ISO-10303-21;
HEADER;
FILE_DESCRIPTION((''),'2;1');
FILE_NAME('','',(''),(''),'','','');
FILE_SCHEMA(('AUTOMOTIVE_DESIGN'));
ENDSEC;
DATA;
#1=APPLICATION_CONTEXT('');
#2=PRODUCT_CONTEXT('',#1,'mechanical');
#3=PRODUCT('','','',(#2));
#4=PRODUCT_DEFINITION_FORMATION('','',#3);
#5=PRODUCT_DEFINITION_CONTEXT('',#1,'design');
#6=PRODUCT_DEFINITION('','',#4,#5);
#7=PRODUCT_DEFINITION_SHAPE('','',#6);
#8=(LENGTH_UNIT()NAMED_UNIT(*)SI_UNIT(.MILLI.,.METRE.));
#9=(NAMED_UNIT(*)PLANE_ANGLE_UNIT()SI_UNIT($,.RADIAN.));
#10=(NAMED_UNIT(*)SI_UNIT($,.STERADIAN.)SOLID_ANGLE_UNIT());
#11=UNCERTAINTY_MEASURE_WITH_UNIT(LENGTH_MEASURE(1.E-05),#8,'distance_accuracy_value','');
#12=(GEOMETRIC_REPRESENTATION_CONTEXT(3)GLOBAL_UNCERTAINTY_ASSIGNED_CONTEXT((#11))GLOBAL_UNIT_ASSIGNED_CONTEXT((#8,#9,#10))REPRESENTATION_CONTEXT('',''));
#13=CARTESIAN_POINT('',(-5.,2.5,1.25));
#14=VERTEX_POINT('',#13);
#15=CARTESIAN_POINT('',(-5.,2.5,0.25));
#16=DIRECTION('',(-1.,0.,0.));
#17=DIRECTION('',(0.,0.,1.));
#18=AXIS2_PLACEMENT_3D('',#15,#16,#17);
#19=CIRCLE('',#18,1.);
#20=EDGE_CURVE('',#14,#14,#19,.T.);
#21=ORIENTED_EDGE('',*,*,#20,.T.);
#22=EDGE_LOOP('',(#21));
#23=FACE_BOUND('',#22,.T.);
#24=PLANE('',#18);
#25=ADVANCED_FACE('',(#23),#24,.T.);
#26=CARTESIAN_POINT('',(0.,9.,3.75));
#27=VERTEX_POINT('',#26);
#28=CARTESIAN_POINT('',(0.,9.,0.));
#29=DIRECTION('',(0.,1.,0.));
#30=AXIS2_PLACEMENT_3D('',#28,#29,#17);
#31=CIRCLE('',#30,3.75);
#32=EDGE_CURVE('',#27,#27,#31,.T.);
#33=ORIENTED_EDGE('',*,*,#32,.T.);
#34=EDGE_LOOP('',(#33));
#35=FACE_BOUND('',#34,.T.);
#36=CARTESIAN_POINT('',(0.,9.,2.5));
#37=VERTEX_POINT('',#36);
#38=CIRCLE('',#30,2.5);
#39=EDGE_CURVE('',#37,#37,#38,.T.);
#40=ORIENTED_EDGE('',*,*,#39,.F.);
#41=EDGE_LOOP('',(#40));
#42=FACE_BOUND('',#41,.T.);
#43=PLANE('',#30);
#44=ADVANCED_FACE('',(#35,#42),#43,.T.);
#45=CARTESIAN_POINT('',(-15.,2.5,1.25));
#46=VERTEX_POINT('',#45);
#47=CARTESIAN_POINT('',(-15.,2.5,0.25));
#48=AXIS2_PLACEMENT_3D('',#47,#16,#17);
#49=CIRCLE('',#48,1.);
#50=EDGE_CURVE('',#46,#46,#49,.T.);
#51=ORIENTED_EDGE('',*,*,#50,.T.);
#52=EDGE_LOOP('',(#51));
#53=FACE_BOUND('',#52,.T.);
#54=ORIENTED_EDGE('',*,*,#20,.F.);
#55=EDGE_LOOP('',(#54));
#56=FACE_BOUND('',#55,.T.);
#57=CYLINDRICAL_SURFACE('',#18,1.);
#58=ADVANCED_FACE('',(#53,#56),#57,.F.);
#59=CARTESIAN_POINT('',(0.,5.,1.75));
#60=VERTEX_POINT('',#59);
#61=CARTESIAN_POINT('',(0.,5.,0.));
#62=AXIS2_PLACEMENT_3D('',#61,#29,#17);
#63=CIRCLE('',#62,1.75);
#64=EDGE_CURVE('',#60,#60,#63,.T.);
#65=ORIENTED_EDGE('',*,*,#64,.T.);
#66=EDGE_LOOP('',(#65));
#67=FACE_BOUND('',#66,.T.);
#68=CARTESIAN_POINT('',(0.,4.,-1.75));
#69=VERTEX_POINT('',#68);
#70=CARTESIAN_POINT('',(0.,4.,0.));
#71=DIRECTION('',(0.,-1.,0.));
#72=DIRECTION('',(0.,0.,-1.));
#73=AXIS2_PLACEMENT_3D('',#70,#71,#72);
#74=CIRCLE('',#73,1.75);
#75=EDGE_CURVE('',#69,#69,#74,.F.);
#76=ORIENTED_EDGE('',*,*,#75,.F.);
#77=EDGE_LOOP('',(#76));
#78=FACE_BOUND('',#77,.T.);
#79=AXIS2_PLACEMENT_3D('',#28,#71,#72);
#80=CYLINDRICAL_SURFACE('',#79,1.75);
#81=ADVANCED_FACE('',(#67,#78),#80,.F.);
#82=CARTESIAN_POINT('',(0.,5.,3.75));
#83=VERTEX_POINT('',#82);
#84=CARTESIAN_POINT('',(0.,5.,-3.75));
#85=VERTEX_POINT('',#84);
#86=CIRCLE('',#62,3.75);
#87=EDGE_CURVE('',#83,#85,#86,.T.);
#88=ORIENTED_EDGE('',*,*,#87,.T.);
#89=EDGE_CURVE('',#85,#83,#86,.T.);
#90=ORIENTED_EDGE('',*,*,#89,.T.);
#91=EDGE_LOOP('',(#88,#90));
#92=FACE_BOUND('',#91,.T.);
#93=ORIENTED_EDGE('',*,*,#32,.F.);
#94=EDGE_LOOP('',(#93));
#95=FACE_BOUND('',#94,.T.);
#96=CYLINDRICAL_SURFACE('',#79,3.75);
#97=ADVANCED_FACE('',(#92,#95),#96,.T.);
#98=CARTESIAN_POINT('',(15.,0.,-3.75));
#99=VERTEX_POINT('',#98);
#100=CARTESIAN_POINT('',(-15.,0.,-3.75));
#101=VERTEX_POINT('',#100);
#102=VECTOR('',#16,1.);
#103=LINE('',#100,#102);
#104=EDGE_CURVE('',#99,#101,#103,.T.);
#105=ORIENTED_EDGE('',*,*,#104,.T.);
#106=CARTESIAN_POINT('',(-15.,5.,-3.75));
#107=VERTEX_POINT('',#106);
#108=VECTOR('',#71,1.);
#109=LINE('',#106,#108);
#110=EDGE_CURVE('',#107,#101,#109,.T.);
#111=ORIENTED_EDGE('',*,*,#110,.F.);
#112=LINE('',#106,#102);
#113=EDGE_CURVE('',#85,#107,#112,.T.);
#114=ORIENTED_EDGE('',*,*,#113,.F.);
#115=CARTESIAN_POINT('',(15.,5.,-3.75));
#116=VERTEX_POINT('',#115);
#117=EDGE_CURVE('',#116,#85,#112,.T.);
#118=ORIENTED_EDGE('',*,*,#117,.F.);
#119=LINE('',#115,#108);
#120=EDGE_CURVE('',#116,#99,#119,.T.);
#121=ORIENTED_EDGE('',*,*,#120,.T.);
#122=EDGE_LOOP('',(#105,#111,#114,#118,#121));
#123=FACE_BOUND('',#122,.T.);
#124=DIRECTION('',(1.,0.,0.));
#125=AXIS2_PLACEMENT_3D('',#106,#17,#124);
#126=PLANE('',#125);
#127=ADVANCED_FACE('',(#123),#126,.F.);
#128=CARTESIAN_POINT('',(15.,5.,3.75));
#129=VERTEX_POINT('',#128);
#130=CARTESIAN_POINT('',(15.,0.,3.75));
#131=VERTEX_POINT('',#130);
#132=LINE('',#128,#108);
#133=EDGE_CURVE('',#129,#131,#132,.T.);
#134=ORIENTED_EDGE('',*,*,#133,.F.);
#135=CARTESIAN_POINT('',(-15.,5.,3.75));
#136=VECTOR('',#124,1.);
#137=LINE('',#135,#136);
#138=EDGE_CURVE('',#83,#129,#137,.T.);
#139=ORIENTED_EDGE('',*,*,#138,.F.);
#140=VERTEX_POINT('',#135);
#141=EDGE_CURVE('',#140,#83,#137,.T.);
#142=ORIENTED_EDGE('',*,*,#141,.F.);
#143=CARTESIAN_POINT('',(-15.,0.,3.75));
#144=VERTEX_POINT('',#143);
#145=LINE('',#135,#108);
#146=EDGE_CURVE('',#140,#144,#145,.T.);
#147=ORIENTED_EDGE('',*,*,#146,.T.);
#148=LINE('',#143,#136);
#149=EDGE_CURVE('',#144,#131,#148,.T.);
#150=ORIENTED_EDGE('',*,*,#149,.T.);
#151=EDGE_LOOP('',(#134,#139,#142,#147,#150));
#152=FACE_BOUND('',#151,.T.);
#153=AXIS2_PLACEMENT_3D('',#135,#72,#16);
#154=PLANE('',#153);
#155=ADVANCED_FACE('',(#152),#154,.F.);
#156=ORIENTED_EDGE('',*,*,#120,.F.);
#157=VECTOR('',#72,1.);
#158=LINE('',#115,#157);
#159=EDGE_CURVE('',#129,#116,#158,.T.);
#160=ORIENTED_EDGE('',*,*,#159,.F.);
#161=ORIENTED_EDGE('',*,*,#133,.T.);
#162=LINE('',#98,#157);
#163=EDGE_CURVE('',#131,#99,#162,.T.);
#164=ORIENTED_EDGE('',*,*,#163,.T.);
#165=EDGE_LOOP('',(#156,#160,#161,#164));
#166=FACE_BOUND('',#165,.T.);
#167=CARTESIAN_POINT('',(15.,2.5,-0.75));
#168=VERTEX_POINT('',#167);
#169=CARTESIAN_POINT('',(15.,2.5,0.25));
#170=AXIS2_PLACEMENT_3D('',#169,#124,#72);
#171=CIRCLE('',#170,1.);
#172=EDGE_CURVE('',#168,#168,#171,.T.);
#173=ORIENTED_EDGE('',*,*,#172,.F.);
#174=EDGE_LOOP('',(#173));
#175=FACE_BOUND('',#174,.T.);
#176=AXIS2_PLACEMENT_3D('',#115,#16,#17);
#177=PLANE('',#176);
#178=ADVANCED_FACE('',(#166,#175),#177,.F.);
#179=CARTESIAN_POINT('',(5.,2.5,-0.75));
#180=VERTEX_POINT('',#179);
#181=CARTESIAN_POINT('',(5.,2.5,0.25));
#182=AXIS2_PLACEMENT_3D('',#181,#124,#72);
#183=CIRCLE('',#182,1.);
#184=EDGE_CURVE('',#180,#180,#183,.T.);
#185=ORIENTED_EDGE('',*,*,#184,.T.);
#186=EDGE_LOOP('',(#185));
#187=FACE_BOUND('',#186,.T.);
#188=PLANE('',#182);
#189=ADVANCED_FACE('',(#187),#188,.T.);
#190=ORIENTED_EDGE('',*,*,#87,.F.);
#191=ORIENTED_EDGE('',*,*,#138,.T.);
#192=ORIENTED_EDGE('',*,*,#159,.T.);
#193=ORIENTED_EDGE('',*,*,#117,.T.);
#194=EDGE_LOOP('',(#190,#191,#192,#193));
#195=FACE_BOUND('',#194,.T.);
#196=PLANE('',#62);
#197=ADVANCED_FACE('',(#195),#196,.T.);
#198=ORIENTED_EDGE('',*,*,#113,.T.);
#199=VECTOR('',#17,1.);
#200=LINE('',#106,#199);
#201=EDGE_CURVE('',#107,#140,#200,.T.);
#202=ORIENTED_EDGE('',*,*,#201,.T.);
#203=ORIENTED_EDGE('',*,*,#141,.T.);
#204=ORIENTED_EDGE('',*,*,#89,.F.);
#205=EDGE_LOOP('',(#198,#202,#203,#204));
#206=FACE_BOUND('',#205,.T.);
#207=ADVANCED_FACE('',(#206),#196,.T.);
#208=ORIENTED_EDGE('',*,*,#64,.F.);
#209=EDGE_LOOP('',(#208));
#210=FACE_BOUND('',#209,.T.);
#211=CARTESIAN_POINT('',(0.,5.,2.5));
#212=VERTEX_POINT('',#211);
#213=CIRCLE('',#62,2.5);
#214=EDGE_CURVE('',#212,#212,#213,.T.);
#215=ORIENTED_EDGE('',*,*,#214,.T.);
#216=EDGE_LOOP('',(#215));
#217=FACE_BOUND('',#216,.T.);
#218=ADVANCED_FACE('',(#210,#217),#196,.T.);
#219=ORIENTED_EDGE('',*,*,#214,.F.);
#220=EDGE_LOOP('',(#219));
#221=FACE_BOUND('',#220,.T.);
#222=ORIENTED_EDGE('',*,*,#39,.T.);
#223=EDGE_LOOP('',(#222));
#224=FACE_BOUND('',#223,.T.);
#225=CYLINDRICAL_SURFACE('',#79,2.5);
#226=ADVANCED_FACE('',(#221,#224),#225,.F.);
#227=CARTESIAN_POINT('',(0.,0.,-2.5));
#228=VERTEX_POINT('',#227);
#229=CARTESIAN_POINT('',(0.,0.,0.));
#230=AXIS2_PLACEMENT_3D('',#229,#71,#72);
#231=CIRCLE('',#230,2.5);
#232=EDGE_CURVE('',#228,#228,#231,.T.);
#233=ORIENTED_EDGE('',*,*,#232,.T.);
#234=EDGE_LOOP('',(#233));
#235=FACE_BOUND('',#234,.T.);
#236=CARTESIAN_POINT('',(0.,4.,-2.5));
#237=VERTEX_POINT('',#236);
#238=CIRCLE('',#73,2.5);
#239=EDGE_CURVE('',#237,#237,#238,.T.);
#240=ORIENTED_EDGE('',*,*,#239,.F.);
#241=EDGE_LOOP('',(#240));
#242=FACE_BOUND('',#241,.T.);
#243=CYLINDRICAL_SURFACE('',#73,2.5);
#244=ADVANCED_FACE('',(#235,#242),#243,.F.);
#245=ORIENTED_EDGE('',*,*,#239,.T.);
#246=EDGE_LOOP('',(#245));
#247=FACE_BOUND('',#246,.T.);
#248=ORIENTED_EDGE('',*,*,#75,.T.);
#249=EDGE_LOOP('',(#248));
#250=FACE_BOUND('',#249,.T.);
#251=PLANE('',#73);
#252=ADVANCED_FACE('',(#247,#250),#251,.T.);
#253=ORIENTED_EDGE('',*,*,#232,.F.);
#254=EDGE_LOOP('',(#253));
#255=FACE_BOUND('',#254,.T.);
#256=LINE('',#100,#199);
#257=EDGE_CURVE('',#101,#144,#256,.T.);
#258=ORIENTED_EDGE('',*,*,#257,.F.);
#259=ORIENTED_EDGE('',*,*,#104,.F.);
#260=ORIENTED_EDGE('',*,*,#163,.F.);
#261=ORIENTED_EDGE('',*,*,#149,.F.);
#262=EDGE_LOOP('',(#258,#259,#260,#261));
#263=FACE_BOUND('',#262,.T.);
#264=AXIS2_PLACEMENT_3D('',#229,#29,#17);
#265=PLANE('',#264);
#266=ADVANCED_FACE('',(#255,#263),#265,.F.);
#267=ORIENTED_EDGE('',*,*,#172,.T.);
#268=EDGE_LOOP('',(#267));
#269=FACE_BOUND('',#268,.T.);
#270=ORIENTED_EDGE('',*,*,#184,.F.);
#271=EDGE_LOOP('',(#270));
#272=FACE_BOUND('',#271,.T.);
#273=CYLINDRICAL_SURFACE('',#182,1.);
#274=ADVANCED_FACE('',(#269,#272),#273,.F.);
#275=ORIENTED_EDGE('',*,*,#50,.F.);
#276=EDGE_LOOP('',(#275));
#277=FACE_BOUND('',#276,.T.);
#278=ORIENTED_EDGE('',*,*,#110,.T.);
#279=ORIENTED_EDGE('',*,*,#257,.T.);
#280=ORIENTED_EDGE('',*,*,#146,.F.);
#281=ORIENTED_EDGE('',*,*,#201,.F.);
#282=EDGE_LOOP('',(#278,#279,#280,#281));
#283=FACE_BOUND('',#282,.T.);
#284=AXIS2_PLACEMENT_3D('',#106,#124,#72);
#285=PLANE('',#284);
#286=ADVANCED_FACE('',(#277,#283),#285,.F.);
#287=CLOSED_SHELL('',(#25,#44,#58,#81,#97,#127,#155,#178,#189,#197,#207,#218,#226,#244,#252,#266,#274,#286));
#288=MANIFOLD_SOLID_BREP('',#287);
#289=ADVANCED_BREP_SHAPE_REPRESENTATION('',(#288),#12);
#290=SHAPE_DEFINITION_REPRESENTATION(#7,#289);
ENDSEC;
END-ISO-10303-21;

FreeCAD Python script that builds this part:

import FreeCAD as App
import Part
import Sketcher
Q = App.Units.Quantity


def add_polygon(sketch, points):
    """Adds a closed chain of lines whose ends are joined by coincident constraints."""
    first, n = sketch.GeometryCount, len(points)
    for a, b in zip(points, points[1:] + points[:1]):
        sketch.addGeometry(Part.LineSegment(App.Vector(*a, 0), App.Vector(*b, 0)), False)
    for i in range(n):
        sketch.addConstraint(Sketcher.Constraint("Coincident", first + i, 2, first + (i + 1) % n, 1))

doc = App.newDocument("Part")
body = doc.addObject("PartDesign::Body", "Body")

# Sketch on XZ plane
sketch1 = body.newObject("Sketcher::SketchObject", "Sketch")
sketch1.AttachmentSupport = (doc.getObject("XZ_Plane"), [""])
sketch1.MapMode = "FlatFace"
add_polygon(sketch1, [(-15, -3.75), (-15, 3.75), (15, 3.75), (15, -3.75)])  # lines 0-3
sketch1.addConstraint(Sketcher.Constraint("Vertical", 0))
sketch1.addConstraint(Sketcher.Constraint("Horizontal", 1))
sketch1.addConstraint(Sketcher.Constraint("Vertical", 2))
sketch1.addConstraint(Sketcher.Constraint("Horizontal", 3))
sketch1.addConstraint(Sketcher.Constraint("Symmetric", 0, 2, 2, 2, -1, 1))
sketch1.addConstraint(Sketcher.Constraint("DistanceX", 1, 1, 1, 2, Q("30 mm")))
sketch1.addConstraint(Sketcher.Constraint("DistanceY", 0, 1, 0, 2, Q("7.5 mm")))
pad1 = body.newObject("PartDesign::Pad", "Pad")
pad1.Profile = sketch1
pad1.Length = 5
pad1.Reversed = True

# Sketch on XZ plane
sketch2 = body.newObject("Sketcher::SketchObject", "Sketch001")
sketch2.AttachmentSupport = (doc.getObject("XZ_Plane"), [""])
sketch2.MapMode = "FlatFace"
sketch2.AttachmentOffset = App.Placement(App.Vector(0, 0, -5), App.Rotation())
sketch2.addGeometry(Part.Circle(App.Vector(0, 0, 0), App.Vector(0, 0, 1), 3.75), False)
sketch2.addGeometry(Part.Circle(App.Vector(0, 0, 0), App.Vector(0, 0, 1), 2.5), False)
sketch2.addConstraint(Sketcher.Constraint("Coincident", 0, 3, -1, 1))
sketch2.addConstraint(Sketcher.Constraint("Coincident", 1, 3, -1, 1))
sketch2.addConstraint(Sketcher.Constraint("Diameter", 1, Q("5 mm")))
sketch2.addConstraint(Sketcher.Constraint("Diameter", 0, Q("7.5 mm")))
pad2 = body.newObject("PartDesign::Pad", "Pad001")
pad2.Profile = sketch2
pad2.Length = 4
pad2.Reversed = True

# Sketch on XZ plane
sketch3 = body.newObject("Sketcher::SketchObject", "Sketch002")
sketch3.AttachmentSupport = (doc.getObject("XZ_Plane"), [""])
sketch3.MapMode = "FlatFace"
sketch3.addGeometry(Part.Circle(App.Vector(0, 0, 0), App.Vector(0, 0, 1), 1.75), False)
sketch3.addConstraint(Sketcher.Constraint("Coincident", 0, 3, -1, 1))
sketch3.addConstraint(Sketcher.Constraint("Diameter", 0, Q("3.5 mm")))
pocket1 = body.newObject("PartDesign::Pocket", "Pocket")
pocket1.Profile = sketch3
pocket1.Type = "ThroughAll"

# Sketch on XZ plane
sketch4 = body.newObject("Sketcher::SketchObject", "Sketch003")
sketch4.AttachmentSupport = (doc.getObject("XZ_Plane"), [""])
sketch4.MapMode = "FlatFace"
sketch4.addGeometry(Part.Circle(App.Vector(0, 0, 0), App.Vector(0, 0, 1), 2.5), False)
sketch4.addConstraint(Sketcher.Constraint("Coincident", 0, 3, -1, 1))
sketch4.addConstraint(Sketcher.Constraint("Diameter", 0, Q("5 mm")))
pocket2 = body.newObject("PartDesign::Pocket", "Pocket001")
pocket2.Profile = sketch4
pocket2.Length = 4

# Sketch on YZ plane
sketch5 = body.newObject("Sketcher::SketchObject", "Sketch004")
sketch5.AttachmentSupport = (doc.getObject("YZ_Plane"), [""])
sketch5.MapMode = "FlatFace"
sketch5.AttachmentOffset = App.Placement(App.Vector(0, 0, 15), App.Rotation())
sketch5.addGeometry(Part.Circle(App.Vector(2.5, 0.25, 0), App.Vector(0, 0, 1), 1), False)
sketch5.addConstraint(Sketcher.Constraint("Diameter", 0, Q("2 mm")))
sketch5.addConstraint(Sketcher.Constraint("DistanceX", -1, 1, 0, 3, Q("2.5 mm")))
sketch5.addConstraint(Sketcher.Constraint("DistanceY", -1, 1, 0, 3, Q("0.25 mm")))
pocket3 = body.newObject("PartDesign::Pocket", "Pocket002")
pocket3.Profile = sketch5
pocket3.Length = 10

# Sketch on YZ plane
sketch6 = body.newObject("Sketcher::SketchObject", "Sketch005")
sketch6.AttachmentSupport = (doc.getObject("YZ_Plane"), [""])
sketch6.MapMode = "FlatFace"
sketch6.AttachmentOffset = App.Placement(App.Vector(0, 0, -5), App.Rotation())
sketch6.addGeometry(Part.Circle(App.Vector(2.5, 0.25, 0), App.Vector(0, 0, 1), 1), False)
sketch6.addConstraint(Sketcher.Constraint("Diameter", 0, Q("2 mm")))
sketch6.addConstraint(Sketcher.Constraint("DistanceX", -1, 1, 0, 3, Q("2.5 mm")))
sketch6.addConstraint(Sketcher.Constraint("DistanceY", -1, 1, 0, 3, Q("0.25 mm")))
pocket4 = body.newObject("PartDesign::Pocket", "Pocket003")
pocket4.Profile = sketch6
pocket4.Length = 10

doc.recompute()
